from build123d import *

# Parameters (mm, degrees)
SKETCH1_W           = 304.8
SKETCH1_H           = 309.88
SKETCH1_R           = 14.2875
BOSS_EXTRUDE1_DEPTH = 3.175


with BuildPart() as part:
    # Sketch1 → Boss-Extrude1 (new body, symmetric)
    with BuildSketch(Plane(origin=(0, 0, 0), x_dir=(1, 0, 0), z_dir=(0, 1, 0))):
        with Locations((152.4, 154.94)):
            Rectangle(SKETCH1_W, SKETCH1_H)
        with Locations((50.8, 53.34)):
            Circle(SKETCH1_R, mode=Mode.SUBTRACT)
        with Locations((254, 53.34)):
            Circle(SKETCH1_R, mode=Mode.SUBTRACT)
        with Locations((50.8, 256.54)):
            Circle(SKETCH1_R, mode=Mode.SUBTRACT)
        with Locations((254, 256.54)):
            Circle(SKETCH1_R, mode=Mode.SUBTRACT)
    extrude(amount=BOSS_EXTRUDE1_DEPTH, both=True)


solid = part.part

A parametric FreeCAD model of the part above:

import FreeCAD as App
import Part
import Sketcher
from FreeCAD import Vector
Q = App.Units.Quantity


def add_polygon(sketch, points):
    """Adds a closed chain of lines whose ends are joined by coincident constraints."""
    first, n = sketch.GeometryCount, len(points)
    for a, b in zip(points, points[1:] + points[:1]):
        sketch.addGeometry(Part.LineSegment(App.Vector(*a, 0), App.Vector(*b, 0)), False)
    for i in range(n):
        sketch.addConstraint(Sketcher.Constraint("Coincident", first + i, 2, first + (i + 1) % n, 1))

doc = App.newDocument("Part")
params = doc.addObject("Spreadsheet::Sheet", "Params")
for row, (alias, value) in enumerate([
    ("sketch1_width", "12 in"),
    ("sketch1_diameter", "1.125 in"),
    ("sketch1_height", "12.2 in"),
    ("pad1_length", "0.25 in"),
], start=1):
    params.set(f"A{row}", alias)
    params.set(f"B{row}", "=" + value)
    params.setAlias(f"B{row}", alias)

body = doc.addObject("PartDesign::Body", "Body")

# Sketch on XZ plane
sketch1 = doc.addObject("Sketcher::SketchObject", "Sketch")
body.addObject(sketch1)
sketch1.AttachmentSupport = (doc.XZ_Plane, [""])
sketch1.MapMode = "FlatFace"
add_polygon(sketch1, [(0, -309.88), (0, 0), (304.8, 0), (304.8, -309.88)])  # lines 0-3
sketch1.addGeometry(Part.Circle(Vector(50.8, -53.34, 0), Vector(0, 0, 1), 14.2875), False)  # 4
sketch1.addGeometry(Part.Circle(Vector(254, -53.34, 0), Vector(0, 0, 1), 14.2875), False)  # 5
sketch1.addGeometry(Part.Circle(Vector(50.8, -256.54, 0), Vector(0, 0, 1), 14.2875), False)  # 6
sketch1.addGeometry(Part.Circle(Vector(254, -256.54, 0), Vector(0, 0, 1), 14.2875), False)  # 7
sketch1.addConstraint(Sketcher.Constraint("Vertical", 0))
sketch1.addConstraint(Sketcher.Constraint("Horizontal", 1))
sketch1.addConstraint(Sketcher.Constraint("Vertical", 2))
sketch1.addConstraint(Sketcher.Constraint("Horizontal", 3))
sketch1.addConstraint(Sketcher.Constraint("Coincident", 0, 2, -1, 1))
sketch1.addConstraint(Sketcher.Constraint("Equal", 4, 5))
sketch1.addConstraint(Sketcher.Constraint("Equal", 5, 6))
sketch1.addConstraint(Sketcher.Constraint("Equal", 6, 7))
sketch1.addConstraint(Sketcher.Constraint("Horizontal", 4, 3, 5, 3))
sketch1.addConstraint(Sketcher.Constraint("Horizontal", 6, 3, 7, 3))
sketch1.addConstraint(Sketcher.Constraint("Vertical", 4, 3, 6, 3))
sketch1.addConstraint(Sketcher.Constraint("Vertical", 5, 3, 7, 3))
sketch1.addConstraint(Sketcher.Constraint("DistanceX", 1, 1, 1, 2, Q("12 in")))
sketch1.addConstraint(Sketcher.Constraint("Diameter", 4, Q("1.125 in")))
sketch1.addConstraint(Sketcher.Constraint("DistanceY", 0, 1, 0, 2, Q("12.2 in")))
sketch1.addConstraint(Sketcher.Constraint("DistanceX", -1, 1, 4, 3, Q("2 in")))
sketch1.addConstraint(Sketcher.Constraint("DistanceX", -1, 1, 5, 3, Q("10 in")))
sketch1.addConstraint(Sketcher.Constraint("DistanceY", 6, 3, 4, 3, Q("8 in")))
sketch1.addConstraint(Sketcher.Constraint("DistanceY", 4, 3, -1, 1, Q("2.1 in")))
sketch1.setExpression("Constraints[16]", "Params.sketch1_width")
sketch1.setExpression("Constraints[17]", "Params.sketch1_diameter")
sketch1.setExpression("Constraints[18]", "Params.sketch1_height")
pad1 = doc.addObject("PartDesign::Pad", "Pad")
body.addObject(pad1)
pad1.Profile = sketch1
pad1.setExpression("Length", "Params.pad1_length")
pad1.Midplane = True

doc.recompute()
